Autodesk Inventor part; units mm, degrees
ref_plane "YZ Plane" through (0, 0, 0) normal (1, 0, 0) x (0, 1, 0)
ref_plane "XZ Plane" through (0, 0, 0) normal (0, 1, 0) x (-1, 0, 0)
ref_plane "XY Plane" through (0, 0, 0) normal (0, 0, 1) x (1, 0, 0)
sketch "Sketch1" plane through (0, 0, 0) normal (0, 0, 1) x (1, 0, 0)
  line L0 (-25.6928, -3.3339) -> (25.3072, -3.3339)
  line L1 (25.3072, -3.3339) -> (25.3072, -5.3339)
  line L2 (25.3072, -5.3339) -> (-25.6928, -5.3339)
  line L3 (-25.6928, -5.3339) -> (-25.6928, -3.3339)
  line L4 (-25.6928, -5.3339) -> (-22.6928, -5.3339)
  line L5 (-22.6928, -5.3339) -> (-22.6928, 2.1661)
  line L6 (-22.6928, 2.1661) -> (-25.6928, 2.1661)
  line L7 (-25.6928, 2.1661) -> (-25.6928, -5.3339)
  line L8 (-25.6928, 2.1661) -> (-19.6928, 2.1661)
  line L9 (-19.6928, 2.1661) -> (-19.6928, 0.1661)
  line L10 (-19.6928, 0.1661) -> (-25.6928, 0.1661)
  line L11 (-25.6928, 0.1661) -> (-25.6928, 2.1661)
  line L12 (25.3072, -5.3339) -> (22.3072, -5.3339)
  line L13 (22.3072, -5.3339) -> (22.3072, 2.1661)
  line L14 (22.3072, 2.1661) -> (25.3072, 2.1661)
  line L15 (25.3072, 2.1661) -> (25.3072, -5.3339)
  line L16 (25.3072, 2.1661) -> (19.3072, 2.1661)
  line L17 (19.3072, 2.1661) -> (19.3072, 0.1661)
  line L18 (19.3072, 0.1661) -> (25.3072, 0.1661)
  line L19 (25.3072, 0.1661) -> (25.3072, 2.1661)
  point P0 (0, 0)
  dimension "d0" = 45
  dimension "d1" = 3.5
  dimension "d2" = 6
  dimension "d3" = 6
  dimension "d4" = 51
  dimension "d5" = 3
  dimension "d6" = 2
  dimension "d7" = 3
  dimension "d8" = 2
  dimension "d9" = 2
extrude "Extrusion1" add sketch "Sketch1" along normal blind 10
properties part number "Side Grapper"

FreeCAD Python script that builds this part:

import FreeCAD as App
import Part
import Sketcher


def add_polygon(sketch, points):
    """Adds a closed chain of lines whose ends are joined by coincident constraints."""
    first, n = sketch.GeometryCount, len(points)
    for a, b in zip(points, points[1:] + points[:1]):
        sketch.addGeometry(Part.LineSegment(App.Vector(*a, 0), App.Vector(*b, 0)), False)
    for i in range(n):
        sketch.addConstraint(Sketcher.Constraint("Coincident", first + i, 2, first + (i + 1) % n, 1))

doc = App.newDocument("Part")
body = doc.addObject("PartDesign::Body", "Body")

sketch1 = body.newObject("Sketcher::SketchObject", "Sketch")
sketch1.AttachmentSupport = (doc.getObject("XY_Plane"), [""])
sketch1.MapMode = "FlatFace"
add_polygon(sketch1, [(-25.6928, -5.3339), (25.3072, -5.3339), (25.3072, 2.1661), (19.3072, 2.1661), (19.3072, 0.1661), (22.3072, 0.1661), (22.3072, -3.3339), (-22.6928, -3.3339), (-22.6928, 0.1661), (-19.6928, 0.1661), (-19.6928, 2.1661), (-25.6928, 2.1661)])
sketch1.addConstraint([
    Sketcher.Constraint("Horizontal", 0),
    Sketcher.Constraint("Vertical", 1),
    Sketcher.Constraint("Horizontal", 2),
    Sketcher.Constraint("Vertical", 3),
    Sketcher.Constraint("Horizontal", 4),
    Sketcher.Constraint("Vertical", 5),
    Sketcher.Constraint("Horizontal", 6),
    Sketcher.Constraint("Vertical", 7),
    Sketcher.Constraint("Horizontal", 8),
    Sketcher.Constraint("Vertical", 9),
    Sketcher.Constraint("Horizontal", 10),
    Sketcher.Constraint("Vertical", 11),
    Sketcher.Constraint("Horizontal", 4, 2, 7, 2),
    Sketcher.Constraint("Horizontal", 2, 2, 9, 2),
    Sketcher.Constraint("Equal", 4, 8),
    Sketcher.Constraint("Equal", 2, 10),
    Sketcher.Constraint("DistanceX", 0, 1, 0, 2, 51.0),
    Sketcher.Constraint("DistanceX", 2, 2, 2, 1, 6.0),
    Sketcher.Constraint("DistanceX", 4, 1, 4, 2, 3.0),
    Sketcher.Constraint("DistanceY", 3, 2, 3, 1, 2.0),
    Sketcher.Constraint("DistanceY", 5, 2, 5, 1, 3.5),
    Sketcher.Constraint("DistanceY", 0, 2, 5, 2, 2.0),
    Sketcher.Constraint("DistanceY", 0, 2, -1, 1, 5.334),
    Sketcher.Constraint("DistanceX", -1, 1, 0, 2, 25.3072),
])
pad1 = body.newObject("PartDesign::Pad", "Pad")
pad1.Profile = sketch1
pad1.Length = 10

doc.recompute()
